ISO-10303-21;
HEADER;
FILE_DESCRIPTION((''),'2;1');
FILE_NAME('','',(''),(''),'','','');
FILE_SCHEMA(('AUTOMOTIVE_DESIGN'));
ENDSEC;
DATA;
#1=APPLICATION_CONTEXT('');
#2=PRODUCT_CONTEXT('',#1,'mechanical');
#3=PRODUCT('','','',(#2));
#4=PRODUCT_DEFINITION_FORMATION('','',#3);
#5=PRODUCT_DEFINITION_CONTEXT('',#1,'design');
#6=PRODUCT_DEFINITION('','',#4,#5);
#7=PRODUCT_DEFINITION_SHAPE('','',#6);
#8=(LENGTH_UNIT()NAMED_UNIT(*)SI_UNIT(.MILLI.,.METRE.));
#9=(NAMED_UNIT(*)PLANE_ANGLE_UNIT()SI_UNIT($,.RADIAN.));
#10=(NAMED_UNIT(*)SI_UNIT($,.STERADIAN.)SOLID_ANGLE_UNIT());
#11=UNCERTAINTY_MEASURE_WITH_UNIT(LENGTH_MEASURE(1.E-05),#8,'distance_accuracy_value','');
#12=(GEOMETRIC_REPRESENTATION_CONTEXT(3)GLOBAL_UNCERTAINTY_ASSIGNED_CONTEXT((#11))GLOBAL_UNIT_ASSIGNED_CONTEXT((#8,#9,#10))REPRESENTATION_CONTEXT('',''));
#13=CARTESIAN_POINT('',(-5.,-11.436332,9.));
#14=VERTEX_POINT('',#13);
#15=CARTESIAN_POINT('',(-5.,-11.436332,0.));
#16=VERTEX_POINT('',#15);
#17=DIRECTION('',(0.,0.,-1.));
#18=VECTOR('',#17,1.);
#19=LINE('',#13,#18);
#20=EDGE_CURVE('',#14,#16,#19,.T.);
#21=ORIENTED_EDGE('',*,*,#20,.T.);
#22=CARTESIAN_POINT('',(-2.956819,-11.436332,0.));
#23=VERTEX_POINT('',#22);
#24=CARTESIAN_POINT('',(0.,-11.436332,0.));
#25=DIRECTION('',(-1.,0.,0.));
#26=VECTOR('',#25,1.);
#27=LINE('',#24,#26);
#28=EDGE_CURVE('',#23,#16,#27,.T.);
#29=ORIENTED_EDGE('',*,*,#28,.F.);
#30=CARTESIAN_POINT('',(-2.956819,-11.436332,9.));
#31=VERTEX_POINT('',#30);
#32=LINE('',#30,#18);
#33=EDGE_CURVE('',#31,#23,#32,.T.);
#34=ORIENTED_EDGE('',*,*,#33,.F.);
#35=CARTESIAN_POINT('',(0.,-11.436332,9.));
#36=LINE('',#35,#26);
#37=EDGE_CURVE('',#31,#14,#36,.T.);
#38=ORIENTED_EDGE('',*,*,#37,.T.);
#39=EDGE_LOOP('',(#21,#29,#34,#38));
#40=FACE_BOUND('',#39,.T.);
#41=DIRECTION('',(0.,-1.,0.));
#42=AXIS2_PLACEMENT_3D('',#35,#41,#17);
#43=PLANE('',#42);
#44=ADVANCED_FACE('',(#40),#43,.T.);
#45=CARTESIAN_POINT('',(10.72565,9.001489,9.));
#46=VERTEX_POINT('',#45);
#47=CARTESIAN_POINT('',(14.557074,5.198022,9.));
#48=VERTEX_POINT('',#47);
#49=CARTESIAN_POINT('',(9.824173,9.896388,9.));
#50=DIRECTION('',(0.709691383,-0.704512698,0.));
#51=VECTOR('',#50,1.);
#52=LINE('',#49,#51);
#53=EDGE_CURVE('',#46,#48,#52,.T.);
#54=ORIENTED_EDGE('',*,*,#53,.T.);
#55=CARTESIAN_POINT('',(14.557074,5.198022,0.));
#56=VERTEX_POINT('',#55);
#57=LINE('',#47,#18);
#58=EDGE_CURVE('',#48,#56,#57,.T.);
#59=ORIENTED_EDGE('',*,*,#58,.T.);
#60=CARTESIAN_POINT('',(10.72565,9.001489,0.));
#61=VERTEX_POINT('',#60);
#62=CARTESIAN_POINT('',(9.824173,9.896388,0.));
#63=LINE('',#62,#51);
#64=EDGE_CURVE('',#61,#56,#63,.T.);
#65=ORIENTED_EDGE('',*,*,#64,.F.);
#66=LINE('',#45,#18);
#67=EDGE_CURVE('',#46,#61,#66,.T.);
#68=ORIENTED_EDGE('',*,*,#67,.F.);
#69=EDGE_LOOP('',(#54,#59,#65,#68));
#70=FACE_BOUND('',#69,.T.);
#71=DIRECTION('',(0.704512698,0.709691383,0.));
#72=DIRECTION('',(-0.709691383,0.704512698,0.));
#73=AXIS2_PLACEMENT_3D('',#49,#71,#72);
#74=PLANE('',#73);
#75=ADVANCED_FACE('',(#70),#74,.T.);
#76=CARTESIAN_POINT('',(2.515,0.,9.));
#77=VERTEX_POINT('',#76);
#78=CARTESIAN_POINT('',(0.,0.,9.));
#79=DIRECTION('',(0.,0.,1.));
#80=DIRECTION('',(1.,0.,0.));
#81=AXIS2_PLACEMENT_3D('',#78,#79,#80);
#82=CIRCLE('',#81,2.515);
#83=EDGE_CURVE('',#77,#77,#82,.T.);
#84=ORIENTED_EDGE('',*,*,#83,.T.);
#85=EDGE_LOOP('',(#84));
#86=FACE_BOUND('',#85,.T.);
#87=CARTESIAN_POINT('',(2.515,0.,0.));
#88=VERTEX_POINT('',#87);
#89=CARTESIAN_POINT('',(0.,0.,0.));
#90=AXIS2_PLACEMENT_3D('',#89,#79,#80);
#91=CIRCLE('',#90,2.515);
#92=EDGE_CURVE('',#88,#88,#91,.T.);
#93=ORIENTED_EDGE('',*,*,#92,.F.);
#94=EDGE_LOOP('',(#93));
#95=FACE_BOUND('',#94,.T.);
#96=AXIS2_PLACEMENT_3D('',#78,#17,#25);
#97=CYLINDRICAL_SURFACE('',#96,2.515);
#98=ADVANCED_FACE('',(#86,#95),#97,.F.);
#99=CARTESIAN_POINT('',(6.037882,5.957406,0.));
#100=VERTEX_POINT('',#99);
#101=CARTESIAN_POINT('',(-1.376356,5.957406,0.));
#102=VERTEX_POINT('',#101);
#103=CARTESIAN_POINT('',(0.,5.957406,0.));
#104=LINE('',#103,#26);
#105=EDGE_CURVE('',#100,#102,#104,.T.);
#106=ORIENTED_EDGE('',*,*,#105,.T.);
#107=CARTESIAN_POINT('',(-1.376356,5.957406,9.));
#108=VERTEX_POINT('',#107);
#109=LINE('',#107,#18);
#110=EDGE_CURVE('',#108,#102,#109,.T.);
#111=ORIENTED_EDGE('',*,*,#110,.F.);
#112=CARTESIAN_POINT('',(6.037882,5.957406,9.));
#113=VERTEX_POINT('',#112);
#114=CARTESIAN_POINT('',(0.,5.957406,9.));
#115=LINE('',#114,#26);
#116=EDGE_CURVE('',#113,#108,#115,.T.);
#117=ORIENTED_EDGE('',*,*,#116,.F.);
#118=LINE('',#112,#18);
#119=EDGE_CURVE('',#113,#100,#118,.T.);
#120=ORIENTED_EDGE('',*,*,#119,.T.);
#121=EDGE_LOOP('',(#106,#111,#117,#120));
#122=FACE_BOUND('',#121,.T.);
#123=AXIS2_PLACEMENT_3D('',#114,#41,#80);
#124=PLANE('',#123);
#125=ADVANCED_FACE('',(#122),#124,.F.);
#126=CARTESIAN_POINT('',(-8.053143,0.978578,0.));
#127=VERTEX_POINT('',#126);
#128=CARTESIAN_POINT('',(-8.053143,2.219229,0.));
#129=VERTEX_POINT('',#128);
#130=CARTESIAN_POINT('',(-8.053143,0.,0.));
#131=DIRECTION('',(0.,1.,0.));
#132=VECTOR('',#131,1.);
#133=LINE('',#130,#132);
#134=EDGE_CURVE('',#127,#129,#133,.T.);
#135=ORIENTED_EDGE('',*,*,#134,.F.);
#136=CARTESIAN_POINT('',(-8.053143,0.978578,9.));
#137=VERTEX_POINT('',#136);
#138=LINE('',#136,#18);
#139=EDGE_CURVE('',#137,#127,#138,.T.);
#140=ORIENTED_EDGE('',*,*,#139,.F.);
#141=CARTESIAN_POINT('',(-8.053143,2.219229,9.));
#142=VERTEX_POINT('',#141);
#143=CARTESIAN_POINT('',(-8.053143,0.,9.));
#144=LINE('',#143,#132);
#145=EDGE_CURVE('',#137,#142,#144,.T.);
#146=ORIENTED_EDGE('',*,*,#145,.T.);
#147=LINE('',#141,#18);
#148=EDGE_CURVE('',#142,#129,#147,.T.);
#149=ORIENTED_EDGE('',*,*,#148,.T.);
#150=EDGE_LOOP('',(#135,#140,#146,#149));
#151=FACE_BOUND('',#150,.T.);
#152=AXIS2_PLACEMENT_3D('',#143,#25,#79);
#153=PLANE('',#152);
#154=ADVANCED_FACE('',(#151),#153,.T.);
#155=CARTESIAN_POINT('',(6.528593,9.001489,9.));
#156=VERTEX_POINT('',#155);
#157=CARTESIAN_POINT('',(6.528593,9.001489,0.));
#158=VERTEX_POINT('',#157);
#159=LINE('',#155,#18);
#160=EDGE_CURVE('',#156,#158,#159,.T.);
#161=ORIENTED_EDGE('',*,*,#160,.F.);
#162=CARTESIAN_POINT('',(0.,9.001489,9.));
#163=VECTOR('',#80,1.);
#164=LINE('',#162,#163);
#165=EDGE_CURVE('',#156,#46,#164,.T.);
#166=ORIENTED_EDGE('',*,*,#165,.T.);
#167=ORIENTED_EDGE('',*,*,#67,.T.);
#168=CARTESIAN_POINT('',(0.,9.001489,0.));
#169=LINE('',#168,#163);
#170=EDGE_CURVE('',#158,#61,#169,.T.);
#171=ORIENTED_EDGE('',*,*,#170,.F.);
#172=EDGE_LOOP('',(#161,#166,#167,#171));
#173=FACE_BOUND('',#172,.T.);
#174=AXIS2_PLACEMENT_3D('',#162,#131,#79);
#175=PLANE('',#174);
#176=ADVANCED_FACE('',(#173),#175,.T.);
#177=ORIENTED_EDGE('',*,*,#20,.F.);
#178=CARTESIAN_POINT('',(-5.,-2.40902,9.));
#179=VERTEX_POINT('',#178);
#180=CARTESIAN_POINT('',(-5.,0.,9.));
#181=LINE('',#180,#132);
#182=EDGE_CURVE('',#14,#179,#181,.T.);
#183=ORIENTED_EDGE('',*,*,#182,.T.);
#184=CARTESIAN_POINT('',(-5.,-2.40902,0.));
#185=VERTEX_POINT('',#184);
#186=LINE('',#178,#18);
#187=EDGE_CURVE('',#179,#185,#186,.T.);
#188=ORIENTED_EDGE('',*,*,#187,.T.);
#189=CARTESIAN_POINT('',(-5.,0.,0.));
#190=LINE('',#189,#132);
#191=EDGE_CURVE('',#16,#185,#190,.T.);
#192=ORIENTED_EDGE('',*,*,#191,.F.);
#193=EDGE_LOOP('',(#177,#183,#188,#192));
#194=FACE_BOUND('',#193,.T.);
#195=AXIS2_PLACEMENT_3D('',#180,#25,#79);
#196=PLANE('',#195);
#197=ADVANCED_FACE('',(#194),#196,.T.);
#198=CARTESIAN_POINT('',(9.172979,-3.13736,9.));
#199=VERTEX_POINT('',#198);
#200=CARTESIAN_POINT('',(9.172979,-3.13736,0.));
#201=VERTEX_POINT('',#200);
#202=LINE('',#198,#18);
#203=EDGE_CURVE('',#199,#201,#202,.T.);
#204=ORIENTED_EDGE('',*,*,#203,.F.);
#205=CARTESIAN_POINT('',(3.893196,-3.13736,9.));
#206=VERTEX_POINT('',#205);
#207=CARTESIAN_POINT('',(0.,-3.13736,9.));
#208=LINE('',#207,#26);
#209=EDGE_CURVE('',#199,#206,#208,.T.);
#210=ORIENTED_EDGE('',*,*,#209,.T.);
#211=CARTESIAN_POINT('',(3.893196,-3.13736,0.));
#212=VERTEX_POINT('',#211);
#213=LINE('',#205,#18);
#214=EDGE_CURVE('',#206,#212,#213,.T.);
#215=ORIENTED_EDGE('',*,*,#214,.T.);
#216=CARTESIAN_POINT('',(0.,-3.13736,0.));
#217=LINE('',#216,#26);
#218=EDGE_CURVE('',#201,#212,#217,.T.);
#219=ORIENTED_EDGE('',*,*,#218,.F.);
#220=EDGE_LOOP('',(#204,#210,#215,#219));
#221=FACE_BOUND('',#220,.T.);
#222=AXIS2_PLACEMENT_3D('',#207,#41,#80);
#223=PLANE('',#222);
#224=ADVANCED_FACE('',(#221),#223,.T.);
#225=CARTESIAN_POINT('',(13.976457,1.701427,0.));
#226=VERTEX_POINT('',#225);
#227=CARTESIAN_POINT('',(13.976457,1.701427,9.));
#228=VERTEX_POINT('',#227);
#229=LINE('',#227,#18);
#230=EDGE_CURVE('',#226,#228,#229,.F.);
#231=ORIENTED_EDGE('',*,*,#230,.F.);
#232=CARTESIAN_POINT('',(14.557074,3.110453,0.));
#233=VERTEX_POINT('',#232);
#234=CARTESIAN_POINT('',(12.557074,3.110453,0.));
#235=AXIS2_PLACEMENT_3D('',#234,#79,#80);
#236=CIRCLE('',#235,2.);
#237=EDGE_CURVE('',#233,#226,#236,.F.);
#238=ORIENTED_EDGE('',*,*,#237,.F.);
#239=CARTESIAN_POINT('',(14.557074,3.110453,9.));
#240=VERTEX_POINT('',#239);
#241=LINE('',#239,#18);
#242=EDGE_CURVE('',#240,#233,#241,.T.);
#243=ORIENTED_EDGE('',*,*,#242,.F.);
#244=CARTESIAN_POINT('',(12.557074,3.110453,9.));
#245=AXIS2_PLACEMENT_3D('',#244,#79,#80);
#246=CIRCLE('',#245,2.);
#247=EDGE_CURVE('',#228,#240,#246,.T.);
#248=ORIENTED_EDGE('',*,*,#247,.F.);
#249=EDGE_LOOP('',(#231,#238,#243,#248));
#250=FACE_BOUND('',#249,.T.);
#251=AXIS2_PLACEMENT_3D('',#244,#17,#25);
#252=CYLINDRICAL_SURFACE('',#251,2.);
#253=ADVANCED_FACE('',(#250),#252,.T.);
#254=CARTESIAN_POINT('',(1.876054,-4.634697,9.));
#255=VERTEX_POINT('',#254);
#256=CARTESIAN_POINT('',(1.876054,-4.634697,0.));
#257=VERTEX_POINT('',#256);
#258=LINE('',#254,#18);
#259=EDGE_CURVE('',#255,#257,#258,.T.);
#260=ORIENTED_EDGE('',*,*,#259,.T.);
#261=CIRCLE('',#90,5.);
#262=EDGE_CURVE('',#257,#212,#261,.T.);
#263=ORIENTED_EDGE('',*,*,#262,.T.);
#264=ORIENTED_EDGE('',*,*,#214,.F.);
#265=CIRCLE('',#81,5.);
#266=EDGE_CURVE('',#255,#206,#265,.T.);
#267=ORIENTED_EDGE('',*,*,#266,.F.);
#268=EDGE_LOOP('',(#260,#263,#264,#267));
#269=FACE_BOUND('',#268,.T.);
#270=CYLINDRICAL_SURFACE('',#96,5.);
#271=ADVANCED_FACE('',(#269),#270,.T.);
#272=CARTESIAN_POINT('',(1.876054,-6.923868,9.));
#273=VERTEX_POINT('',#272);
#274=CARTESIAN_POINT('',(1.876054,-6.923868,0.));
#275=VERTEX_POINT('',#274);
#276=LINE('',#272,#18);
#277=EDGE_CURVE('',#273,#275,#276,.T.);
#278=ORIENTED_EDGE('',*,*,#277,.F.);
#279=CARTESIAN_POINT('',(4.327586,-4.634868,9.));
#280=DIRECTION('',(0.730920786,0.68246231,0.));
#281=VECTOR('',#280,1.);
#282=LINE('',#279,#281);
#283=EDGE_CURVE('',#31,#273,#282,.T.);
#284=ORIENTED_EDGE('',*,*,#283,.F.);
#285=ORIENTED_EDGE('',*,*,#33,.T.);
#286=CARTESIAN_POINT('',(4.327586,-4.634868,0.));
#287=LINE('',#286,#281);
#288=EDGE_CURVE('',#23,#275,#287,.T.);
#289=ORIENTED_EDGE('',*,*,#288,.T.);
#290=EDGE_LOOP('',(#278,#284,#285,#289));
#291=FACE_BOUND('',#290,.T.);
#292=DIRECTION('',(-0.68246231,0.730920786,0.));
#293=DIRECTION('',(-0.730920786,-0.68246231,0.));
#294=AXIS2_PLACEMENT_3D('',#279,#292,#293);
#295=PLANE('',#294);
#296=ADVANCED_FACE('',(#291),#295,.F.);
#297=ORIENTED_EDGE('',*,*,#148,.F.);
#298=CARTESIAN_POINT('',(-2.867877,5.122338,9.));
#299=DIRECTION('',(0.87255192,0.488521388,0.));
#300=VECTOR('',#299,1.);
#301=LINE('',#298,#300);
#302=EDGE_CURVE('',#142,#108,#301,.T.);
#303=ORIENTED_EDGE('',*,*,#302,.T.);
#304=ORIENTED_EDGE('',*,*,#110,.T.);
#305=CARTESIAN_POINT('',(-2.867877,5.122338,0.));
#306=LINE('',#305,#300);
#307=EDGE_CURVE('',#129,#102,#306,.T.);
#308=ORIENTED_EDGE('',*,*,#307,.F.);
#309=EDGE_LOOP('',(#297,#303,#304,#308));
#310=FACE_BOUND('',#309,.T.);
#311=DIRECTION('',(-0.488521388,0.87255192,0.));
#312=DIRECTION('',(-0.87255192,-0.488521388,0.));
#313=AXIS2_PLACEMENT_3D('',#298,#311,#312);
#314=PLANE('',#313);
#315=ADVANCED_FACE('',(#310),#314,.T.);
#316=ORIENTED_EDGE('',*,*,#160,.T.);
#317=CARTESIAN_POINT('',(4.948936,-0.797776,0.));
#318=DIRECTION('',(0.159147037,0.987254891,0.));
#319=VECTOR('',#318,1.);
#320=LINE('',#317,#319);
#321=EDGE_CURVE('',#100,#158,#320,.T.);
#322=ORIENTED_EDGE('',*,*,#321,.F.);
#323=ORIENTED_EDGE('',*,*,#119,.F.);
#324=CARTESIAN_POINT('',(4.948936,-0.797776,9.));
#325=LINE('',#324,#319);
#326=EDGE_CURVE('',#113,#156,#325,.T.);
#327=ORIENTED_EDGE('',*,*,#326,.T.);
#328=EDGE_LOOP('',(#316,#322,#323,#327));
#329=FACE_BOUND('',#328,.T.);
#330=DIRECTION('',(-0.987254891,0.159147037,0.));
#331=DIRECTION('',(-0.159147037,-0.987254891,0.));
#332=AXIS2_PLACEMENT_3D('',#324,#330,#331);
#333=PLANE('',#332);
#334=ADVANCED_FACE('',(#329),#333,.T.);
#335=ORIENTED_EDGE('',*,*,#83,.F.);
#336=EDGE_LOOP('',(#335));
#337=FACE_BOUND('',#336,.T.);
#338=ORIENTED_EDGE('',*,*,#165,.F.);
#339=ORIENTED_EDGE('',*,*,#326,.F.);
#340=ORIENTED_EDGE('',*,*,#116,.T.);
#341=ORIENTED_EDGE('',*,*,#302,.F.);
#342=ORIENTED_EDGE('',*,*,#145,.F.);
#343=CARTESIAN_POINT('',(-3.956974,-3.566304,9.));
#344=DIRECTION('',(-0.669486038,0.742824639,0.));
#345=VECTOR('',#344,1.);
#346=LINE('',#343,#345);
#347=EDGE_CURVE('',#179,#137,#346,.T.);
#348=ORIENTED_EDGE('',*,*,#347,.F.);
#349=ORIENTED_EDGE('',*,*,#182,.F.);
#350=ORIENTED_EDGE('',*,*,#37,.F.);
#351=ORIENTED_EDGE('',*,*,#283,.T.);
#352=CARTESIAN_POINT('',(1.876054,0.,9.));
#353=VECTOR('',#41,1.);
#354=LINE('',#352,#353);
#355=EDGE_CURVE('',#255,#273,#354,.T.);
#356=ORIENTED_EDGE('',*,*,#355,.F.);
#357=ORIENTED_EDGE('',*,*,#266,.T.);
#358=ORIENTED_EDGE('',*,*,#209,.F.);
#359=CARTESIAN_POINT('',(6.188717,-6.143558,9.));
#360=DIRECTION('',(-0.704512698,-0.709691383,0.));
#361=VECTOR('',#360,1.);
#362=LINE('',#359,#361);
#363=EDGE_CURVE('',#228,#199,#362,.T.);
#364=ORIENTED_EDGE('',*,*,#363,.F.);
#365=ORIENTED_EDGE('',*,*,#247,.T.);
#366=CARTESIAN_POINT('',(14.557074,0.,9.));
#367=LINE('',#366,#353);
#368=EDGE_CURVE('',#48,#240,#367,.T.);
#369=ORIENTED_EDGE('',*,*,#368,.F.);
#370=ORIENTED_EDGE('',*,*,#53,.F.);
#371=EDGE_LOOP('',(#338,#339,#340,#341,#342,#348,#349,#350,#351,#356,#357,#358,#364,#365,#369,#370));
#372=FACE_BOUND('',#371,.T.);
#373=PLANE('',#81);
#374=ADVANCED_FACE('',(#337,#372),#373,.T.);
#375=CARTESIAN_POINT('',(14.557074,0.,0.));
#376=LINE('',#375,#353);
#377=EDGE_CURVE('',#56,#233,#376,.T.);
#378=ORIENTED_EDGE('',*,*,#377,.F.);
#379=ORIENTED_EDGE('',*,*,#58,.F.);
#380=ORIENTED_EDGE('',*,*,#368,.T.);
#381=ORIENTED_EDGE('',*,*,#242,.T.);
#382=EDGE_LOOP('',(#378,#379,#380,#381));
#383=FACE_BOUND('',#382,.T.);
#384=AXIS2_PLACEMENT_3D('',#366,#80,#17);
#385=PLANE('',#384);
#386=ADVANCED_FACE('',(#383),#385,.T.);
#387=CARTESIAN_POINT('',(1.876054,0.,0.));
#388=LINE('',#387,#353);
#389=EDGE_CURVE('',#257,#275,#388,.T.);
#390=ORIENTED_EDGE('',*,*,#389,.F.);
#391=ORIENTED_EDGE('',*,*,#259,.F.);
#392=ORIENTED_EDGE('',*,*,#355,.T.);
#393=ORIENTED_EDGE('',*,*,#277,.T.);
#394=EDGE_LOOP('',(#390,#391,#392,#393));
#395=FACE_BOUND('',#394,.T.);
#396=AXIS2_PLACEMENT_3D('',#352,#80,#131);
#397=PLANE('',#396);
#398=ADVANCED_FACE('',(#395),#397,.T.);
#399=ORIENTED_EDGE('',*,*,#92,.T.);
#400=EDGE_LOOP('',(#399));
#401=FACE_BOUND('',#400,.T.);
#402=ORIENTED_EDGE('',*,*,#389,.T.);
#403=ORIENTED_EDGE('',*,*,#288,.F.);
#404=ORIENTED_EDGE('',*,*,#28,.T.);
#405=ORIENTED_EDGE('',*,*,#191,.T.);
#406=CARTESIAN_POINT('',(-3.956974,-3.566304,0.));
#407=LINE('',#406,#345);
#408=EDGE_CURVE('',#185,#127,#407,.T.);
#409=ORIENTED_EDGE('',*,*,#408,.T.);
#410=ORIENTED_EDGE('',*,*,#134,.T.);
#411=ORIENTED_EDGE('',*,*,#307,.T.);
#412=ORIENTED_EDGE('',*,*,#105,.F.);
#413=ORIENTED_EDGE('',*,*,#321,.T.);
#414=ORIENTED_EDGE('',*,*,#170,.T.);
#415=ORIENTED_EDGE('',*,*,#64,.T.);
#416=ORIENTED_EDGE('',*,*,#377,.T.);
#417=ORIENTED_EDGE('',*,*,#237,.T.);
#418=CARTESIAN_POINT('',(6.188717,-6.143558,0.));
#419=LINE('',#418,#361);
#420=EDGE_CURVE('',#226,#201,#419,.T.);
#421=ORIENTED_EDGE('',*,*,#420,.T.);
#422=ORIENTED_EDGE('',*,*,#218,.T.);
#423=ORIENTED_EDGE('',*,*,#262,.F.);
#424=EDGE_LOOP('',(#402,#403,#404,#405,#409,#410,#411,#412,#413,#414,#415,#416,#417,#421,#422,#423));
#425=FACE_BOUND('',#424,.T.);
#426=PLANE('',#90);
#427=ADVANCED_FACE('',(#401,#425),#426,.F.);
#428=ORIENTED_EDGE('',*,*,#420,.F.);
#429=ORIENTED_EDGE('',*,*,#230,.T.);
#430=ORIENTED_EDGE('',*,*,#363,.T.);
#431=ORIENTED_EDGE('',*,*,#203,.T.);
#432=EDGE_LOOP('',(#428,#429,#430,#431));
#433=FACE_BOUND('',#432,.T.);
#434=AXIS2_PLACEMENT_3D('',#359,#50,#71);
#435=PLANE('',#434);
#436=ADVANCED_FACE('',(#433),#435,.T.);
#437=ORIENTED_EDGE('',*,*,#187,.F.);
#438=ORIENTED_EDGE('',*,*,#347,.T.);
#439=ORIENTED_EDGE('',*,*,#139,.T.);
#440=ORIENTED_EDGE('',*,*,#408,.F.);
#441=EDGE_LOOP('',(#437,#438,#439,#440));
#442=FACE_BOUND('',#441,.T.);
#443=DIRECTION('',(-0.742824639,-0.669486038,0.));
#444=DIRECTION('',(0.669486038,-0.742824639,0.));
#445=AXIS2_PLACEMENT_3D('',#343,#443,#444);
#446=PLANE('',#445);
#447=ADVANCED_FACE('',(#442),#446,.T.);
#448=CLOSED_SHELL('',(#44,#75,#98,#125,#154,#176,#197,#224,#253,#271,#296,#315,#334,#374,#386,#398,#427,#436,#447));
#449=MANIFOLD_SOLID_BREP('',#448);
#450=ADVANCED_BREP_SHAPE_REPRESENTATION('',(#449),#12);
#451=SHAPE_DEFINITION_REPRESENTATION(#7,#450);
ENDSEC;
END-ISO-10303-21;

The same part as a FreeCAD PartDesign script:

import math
import FreeCAD as App
import Part
import Sketcher
from FreeCAD import Vector
Q = App.Units.Quantity


def edges_at(feature, points):
    """Names of the edges that pass closest to the given points."""
    edges = feature.Shape.Edges
    near = lambda p: min(range(len(edges)), key=lambda i: edges[i].distToShape(Part.Vertex(*p))[0])
    return sorted({f"Edge{near(p) + 1}" for p in points})

doc = App.newDocument("Part")
params = doc.addObject("Spreadsheet::Sheet", "Params")
for row, (alias, value) in enumerate([
    ("sketch1_radius", "5 mm"),
    ("sketch1_diameter", "5.03 mm"),
    ("pad1_length", "9 mm"),
    ("fillet_radius", "2 mm"),
], start=1):
    params.set(f"A{row}", alias)
    params.set(f"B{row}", "=" + value)
    params.setAlias(f"B{row}", alias)

body = doc.addObject("PartDesign::Body", "Body")

sketch1 = body.newObject("Sketcher::SketchObject", "Sketch")
sketch1.AttachmentSupport = (doc.getObject("XY_Plane"), [""])
sketch1.MapMode = "FlatFace"
sketch1.addGeometry([
    Part.LineSegment(Vector(-8.1, 1, 0), Vector(-5, -2.4, 0)),
    Part.LineSegment(Vector(-5, -2.4, 0), Vector(-5, -11.4, 0)),
    Part.LineSegment(Vector(-5, -11.4, 0), Vector(-3, -11.4, 0)),
    Part.LineSegment(Vector(-3, -11.4, 0), Vector(1.9, -6.9, 0)),
    Part.LineSegment(Vector(1.9, -6.9, 0), Vector(1.9, -4.6, 0)),
    Part.ArcOfCircle(Part.Circle(Vector(0, 0, 0), Vector(0, 0, 1), 5), math.radians(-68), math.radians(-39)),
    Part.LineSegment(Vector(3.9, -3.1, 0), Vector(9.2, -3.1, 0)),
    Part.LineSegment(Vector(9.2, -3.1, 0), Vector(14.6, 2.3, 0)),
    Part.LineSegment(Vector(14.6, 2.3, 0), Vector(14.6, 5.2, 0)),
    Part.LineSegment(Vector(14.6, 5.2, 0), Vector(10.7, 9, 0)),
    Part.LineSegment(Vector(10.7, 9, 0), Vector(6.5, 9, 0)),
    Part.LineSegment(Vector(6.5, 9, 0), Vector(6, 6, 0)),
    Part.LineSegment(Vector(6, 6, 0), Vector(-1.4, 6, 0)),
    Part.LineSegment(Vector(-1.4, 6, 0), Vector(-8.1, 2.2, 0)),
    Part.LineSegment(Vector(-8.1, 2.2, 0), Vector(-8.1, 1, 0)),
    Part.Circle(Vector(0, 0, 0), Vector(0, 0, 1), 2.5),
], False)
sketch1.addConstraint([
    Sketcher.Constraint("Coincident", 0, 2, 1, 1),
    Sketcher.Constraint("Coincident", 1, 2, 2, 1),
    Sketcher.Constraint("Coincident", 2, 2, 3, 1),
    Sketcher.Constraint("Coincident", 3, 2, 4, 1),
    Sketcher.Constraint("Coincident", 4, 2, 5, 1),
    Sketcher.Constraint("Coincident", 5, 2, 6, 1),
    Sketcher.Constraint("Coincident", 6, 2, 7, 1),
    Sketcher.Constraint("Coincident", 7, 2, 8, 1),
    Sketcher.Constraint("Coincident", 8, 2, 9, 1),
    Sketcher.Constraint("Coincident", 9, 2, 10, 1),
    Sketcher.Constraint("Coincident", 10, 2, 11, 1),
    Sketcher.Constraint("Coincident", 11, 2, 12, 1),
    Sketcher.Constraint("Coincident", 12, 2, 13, 1),
    Sketcher.Constraint("Coincident", 13, 2, 14, 1),
    Sketcher.Constraint("Coincident", 14, 2, 0, 1),
    Sketcher.Constraint("Vertical", 1),
    Sketcher.Constraint("Horizontal", 2),
    Sketcher.Constraint("Vertical", 4),
    Sketcher.Constraint("Horizontal", 6),
    Sketcher.Constraint("Vertical", 8),
    Sketcher.Constraint("Horizontal", 10),
    Sketcher.Constraint("Horizontal", 12),
    Sketcher.Constraint("Vertical", 14),
    Sketcher.Constraint("Coincident", 5, 3, -1, 1),
    Sketcher.Constraint("Coincident", 15, 3, -1, 1),
    Sketcher.Constraint("Perpendicular", 7, 9),
    Sketcher.Constraint("Radius", 5, Q("5 mm")),
    Sketcher.Constraint("Diameter", 15, Q("5.03 mm")),
    Sketcher.Constraint("DistanceX", 0, 2, -1, 1, Q("5 mm")),
    Sketcher.Constraint("DistanceX", 2, 1, 2, 2, Q("2.043181 mm")),
    Sketcher.Constraint("DistanceY", 4, 1, 4, 2, Q("2.28917 mm")),
    Sketcher.Constraint("DistanceY", 8, 1, 8, 2, Q("2.91171 mm")),
    Sketcher.Constraint("DistanceY", 14, 2, 14, 1, Q("1.240651 mm")),
    Sketcher.Constraint("DistanceY", 0, 2, 14, 2, Q("3.387598 mm")),
    Sketcher.Constraint("Distance", 0, Q("4.560428 mm")),
    Sketcher.Constraint("Distance", 9, Q("5.398719 mm")),
    Sketcher.Constraint("Distance", 11, Q("3.08338 mm")),
    Sketcher.Constraint("DistanceX", 6, 1, 6, 2, Q("5.279783 mm")),
    Sketcher.Constraint("DistanceX", 10, 2, 10, 1, Q("4.197057 mm")),
    Sketcher.Constraint("DistanceX", 12, 2, 12, 1, Q("7.414238 mm")),
    Sketcher.Constraint("DistanceY", 1, 2, 1, 1, Q("9.027312 mm")),
    Sketcher.Constraint("DistanceY", 0, 2, -1, 1, Q("2.40902 mm")),
    Sketcher.Constraint("DistanceY", 5, 2, -1, 1, Q("3.13736 mm")),
    Sketcher.Constraint("DistanceX", -1, 1, 9, 2, Q("10.72565 mm")),
    Sketcher.Constraint("DistanceY", -1, 1, 9, 2, Q("9.001489 mm")),
    Sketcher.Constraint("DistanceX", 4, 2, 5, 2, Q("2.017141 mm")),
    Sketcher.Constraint("DistanceX", 11, 2, 10, 2, Q("0.490711 mm")),
])
sketch1.setExpression("Constraints[26]", "Params.sketch1_radius")
sketch1.setExpression("Constraints[27]", "Params.sketch1_diameter")
pad1 = body.newObject("PartDesign::Pad", "Pad")
pad1.Profile = sketch1
pad1.setExpression("Length", "Params.pad1_length")
doc.recompute()

fillet = body.newObject("PartDesign::Fillet", "Fillet")
fillet.Base = (pad1, edges_at(pad1, [(14.557, 2.286, 4.5)]))
fillet.setExpression("Radius", "Params.fillet_radius")

doc.recompute()
